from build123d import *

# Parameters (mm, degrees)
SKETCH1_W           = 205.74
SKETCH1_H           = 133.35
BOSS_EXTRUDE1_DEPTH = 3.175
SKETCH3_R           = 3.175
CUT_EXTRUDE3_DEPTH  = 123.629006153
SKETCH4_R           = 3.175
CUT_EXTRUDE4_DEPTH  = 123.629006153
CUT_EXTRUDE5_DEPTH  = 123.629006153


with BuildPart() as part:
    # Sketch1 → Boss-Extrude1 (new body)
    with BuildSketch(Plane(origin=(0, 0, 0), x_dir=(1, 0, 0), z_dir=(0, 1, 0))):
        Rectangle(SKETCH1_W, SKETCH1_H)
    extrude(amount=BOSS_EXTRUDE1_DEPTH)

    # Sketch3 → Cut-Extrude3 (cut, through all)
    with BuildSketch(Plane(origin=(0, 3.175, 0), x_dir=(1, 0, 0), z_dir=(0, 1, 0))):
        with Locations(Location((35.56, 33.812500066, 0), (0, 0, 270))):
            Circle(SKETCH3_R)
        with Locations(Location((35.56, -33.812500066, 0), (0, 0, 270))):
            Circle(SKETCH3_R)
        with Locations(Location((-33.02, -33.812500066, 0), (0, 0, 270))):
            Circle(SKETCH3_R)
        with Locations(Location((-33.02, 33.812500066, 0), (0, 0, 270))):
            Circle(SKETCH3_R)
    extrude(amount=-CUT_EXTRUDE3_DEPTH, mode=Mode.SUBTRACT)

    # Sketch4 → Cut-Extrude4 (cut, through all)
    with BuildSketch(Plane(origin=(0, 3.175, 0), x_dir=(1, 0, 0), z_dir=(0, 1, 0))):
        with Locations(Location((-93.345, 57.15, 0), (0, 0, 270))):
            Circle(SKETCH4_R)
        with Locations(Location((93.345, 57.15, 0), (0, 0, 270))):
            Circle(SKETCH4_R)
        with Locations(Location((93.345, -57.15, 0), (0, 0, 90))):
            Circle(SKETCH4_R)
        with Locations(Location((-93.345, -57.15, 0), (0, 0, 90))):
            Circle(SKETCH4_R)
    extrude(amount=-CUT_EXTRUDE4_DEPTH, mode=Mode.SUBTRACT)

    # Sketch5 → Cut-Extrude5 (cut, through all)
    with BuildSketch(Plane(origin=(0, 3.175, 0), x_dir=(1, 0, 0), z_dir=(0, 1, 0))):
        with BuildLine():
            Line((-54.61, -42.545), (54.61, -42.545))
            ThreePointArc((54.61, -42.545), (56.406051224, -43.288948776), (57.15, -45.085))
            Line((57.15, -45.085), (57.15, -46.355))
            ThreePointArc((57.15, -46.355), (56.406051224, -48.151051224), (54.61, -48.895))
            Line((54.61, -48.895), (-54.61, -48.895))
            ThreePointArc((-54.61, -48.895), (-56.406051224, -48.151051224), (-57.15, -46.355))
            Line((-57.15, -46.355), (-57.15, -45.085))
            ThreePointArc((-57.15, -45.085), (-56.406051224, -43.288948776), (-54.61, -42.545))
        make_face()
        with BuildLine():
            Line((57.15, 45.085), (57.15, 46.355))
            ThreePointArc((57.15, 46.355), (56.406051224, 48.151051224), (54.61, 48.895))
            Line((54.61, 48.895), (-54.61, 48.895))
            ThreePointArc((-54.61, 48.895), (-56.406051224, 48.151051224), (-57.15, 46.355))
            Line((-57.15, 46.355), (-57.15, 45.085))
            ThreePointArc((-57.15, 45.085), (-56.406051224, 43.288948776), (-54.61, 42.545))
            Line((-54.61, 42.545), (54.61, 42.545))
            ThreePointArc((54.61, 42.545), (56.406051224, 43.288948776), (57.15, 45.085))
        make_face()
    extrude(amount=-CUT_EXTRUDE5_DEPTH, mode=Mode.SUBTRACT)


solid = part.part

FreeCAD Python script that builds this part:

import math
import FreeCAD as App
import Part
import Sketcher
from FreeCAD import Vector
Q = App.Units.Quantity


def add_polygon(sketch, points):
    """Adds a closed chain of lines whose ends are joined by coincident constraints."""
    first, n = sketch.GeometryCount, len(points)
    for a, b in zip(points, points[1:] + points[:1]):
        sketch.addGeometry(Part.LineSegment(App.Vector(*a, 0), App.Vector(*b, 0)), False)
    for i in range(n):
        sketch.addConstraint(Sketcher.Constraint("Coincident", first + i, 2, first + (i + 1) % n, 1))

doc = App.newDocument("Part")
body = doc.addObject("PartDesign::Body", "Body")

# Sketch on XZ plane
sketch1 = doc.addObject("Sketcher::SketchObject", "Sketch")
body.addObject(sketch1)
sketch1.AttachmentSupport = (doc.XZ_Plane, [""])
sketch1.MapMode = "FlatFace"
add_polygon(sketch1, [(-103, -67), (-103, 67), (103, 67), (103, -67)])  # lines 0-3
sketch1.addConstraint([
    Sketcher.Constraint("Vertical", 0),
    Sketcher.Constraint("Horizontal", 1),
    Sketcher.Constraint("Vertical", 2),
    Sketcher.Constraint("Horizontal", 3),
    Sketcher.Constraint("Symmetric", 0, 2, 2, 2, -1, 1),
    Sketcher.Constraint("DistanceX", 1, 1, 1, 2, Q("8.1 in")),
    Sketcher.Constraint("DistanceY", 0, 1, 0, 2, Q("5.25 in")),
])
pad1 = doc.addObject("PartDesign::Pad", "Pad")
body.addObject(pad1)
pad1.Profile = sketch1
pad1.Length = Q("0.125 in")
pad1.Reversed = True

# Sketch on XZ plane
sketch2 = doc.addObject("Sketcher::SketchObject", "Sketch001")
body.addObject(sketch2)
sketch2.AttachmentSupport = (doc.XZ_Plane, [""])
sketch2.MapMode = "FlatFace"
sketch2.AttachmentOffset = App.Placement(Vector(0, 0, -0.125 * 25.4), App.Rotation())
sketch2.addGeometry([
    Part.Circle(Vector(35.6, -33.8, 0), Vector(0, 0, 1), 3.2),
    Part.Circle(Vector(35.6, 33.8, 0), Vector(0, 0, 1), 3.2),
    Part.Circle(Vector(-33, 33.8, 0), Vector(0, 0, 1), 3.2),
    Part.Circle(Vector(-33, -33.8, 0), Vector(0, 0, 1), 3.2),
], False)
sketch2.addConstraint([
    Sketcher.Constraint("Equal", 0, 1),
    Sketcher.Constraint("Equal", 1, 2),
    Sketcher.Constraint("Equal", 2, 3),
    Sketcher.Constraint("Symmetric", 0, 3, 1, 3, -1),
    Sketcher.Constraint("Symmetric", 2, 3, 3, 3, -1),
    Sketcher.Constraint("Horizontal", 1, 3, 2, 3),
    Sketcher.Constraint("Diameter", 0, Q("0.25 in")),
    Sketcher.Constraint("DistanceX", -1, 1, 0, 3, Q("1.4 in")),
    Sketcher.Constraint("DistanceX", 2, 3, -1, 1, Q("1.3 in")),
    Sketcher.Constraint("DistanceY", 0, 3, -1, 1, Q("33.8125 mm")),
])
pocket1 = doc.addObject("PartDesign::Pocket", "Pocket")
body.addObject(pocket1)
pocket1.Profile = sketch2
pocket1.Type = "ThroughAll"
pocket1.Reversed = True

# Sketch on XZ plane
sketch3 = doc.addObject("Sketcher::SketchObject", "Sketch002")
body.addObject(sketch3)
sketch3.AttachmentSupport = (doc.XZ_Plane, [""])
sketch3.MapMode = "FlatFace"
sketch3.AttachmentOffset = App.Placement(Vector(0, 0, -0.125 * 25.4), App.Rotation())
sketch3.addGeometry([
    Part.Circle(Vector(-93.3, -57.1, 0), Vector(0, 0, 1), 3.2),
    Part.Circle(Vector(93.3, -57.1, 0), Vector(0, 0, 1), 3.2),
    Part.Circle(Vector(93.3, 57.1, 0), Vector(0, 0, 1), 3.2),
    Part.Circle(Vector(-93.3, 57.1, 0), Vector(0, 0, 1), 3.2),
], False)
sketch3.addConstraint([
    Sketcher.Constraint("Equal", 0, 1),
    Sketcher.Constraint("Equal", 1, 2),
    Sketcher.Constraint("Equal", 2, 3),
    Sketcher.Constraint("Symmetric", 0, 3, 2, 3, -1, 1),
    Sketcher.Constraint("Symmetric", 1, 3, 3, 3, -1, 1),
    Sketcher.Constraint("Symmetric", 0, 3, 1, 3, -2),
    Sketcher.Constraint("Diameter", 0, Q("0.25 in")),
    Sketcher.Constraint("DistanceY", 1, 3, 2, 3, Q("4.5 in")),
    Sketcher.Constraint("DistanceX", 0, 3, 1, 3, Q("7.35 in")),
])
pocket2 = doc.addObject("PartDesign::Pocket", "Pocket001")
body.addObject(pocket2)
pocket2.Profile = sketch3
pocket2.Type = "ThroughAll"
pocket2.Reversed = True

# Sketch on XZ plane
sketch4 = doc.addObject("Sketcher::SketchObject", "Sketch003")
body.addObject(sketch4)
sketch4.AttachmentSupport = (doc.XZ_Plane, [""])
sketch4.MapMode = "FlatFace"
sketch4.AttachmentOffset = App.Placement(Vector(0, 0, -0.125 * 25.4), App.Rotation())
sketch4.addGeometry([
    Part.LineSegment(Vector(54.6, 42.5, 0), Vector(-54.6, 42.5, 0)),  # 0
    Part.ArcOfCircle(Part.Circle(Vector(-54.6, 45.1, 0), Vector(0, 0, 1), 2.5), math.radians(-180), math.radians(-90)),  # 1
    Part.LineSegment(Vector(-57.1, 45.1, 0), Vector(-57.1, 46.4, 0)),  # 2
    Part.ArcOfCircle(Part.Circle(Vector(-54.6, 46.4, 0), Vector(0, 0, 1), 2.5), math.radians(90), math.radians(180)),  # 3
    Part.LineSegment(Vector(-54.6, 48.9, 0), Vector(54.6, 48.9, 0)),  # 4
    Part.ArcOfCircle(Part.Circle(Vector(54.6, 46.4, 0), Vector(0, 0, 1), 2.5), math.radians(0), math.radians(90)),  # 5
    Part.LineSegment(Vector(57.1, 46.4, 0), Vector(57.1, 45.1, 0)),  # 6
    Part.ArcOfCircle(Part.Circle(Vector(54.6, 45.1, 0), Vector(0, 0, 1), 2.5), math.radians(-90), math.radians(0)),  # 7
    Part.LineSegment(Vector(57.1, -45.1, 0), Vector(57.1, -46.4, 0)),  # 8
    Part.ArcOfCircle(Part.Circle(Vector(54.6, -46.4, 0), Vector(0, 0, 1), 2.5), math.radians(-90), math.radians(0)),  # 9
    Part.LineSegment(Vector(54.6, -48.9, 0), Vector(-54.6, -48.9, 0)),  # 10
    Part.ArcOfCircle(Part.Circle(Vector(-54.6, -46.4, 0), Vector(0, 0, 1), 2.5), math.radians(-180), math.radians(-90)),  # 11
    Part.LineSegment(Vector(-57.1, -46.4, 0), Vector(-57.1, -45.1, 0)),  # 12
    Part.ArcOfCircle(Part.Circle(Vector(-54.6, -45.1, 0), Vector(0, 0, 1), 2.5), math.radians(90), math.radians(180)),  # 13
    Part.LineSegment(Vector(-54.6, -42.5, 0), Vector(54.6, -42.5, 0)),  # 14
    Part.ArcOfCircle(Part.Circle(Vector(54.6, -45.1, 0), Vector(0, 0, 1), 2.5), math.radians(0), math.radians(90)),  # 15
], False)
sketch4.addConstraint([
    Sketcher.Constraint("Tangent", 0, 2, 1, 2),
    Sketcher.Constraint("Tangent", 1, 1, 2, 1),
    Sketcher.Constraint("Tangent", 2, 2, 3, 2),
    Sketcher.Constraint("Tangent", 3, 1, 4, 1),
    Sketcher.Constraint("Tangent", 4, 2, 5, 2),
    Sketcher.Constraint("Tangent", 5, 1, 6, 1),
    Sketcher.Constraint("Tangent", 6, 2, 7, 2),
    Sketcher.Constraint("Tangent", 7, 1, 0, 1),
    Sketcher.Constraint("Tangent", 8, 2, 9, 2),
    Sketcher.Constraint("Tangent", 9, 1, 10, 1),
    Sketcher.Constraint("Tangent", 10, 2, 11, 2),
    Sketcher.Constraint("Tangent", 11, 1, 12, 1),
    Sketcher.Constraint("Tangent", 12, 2, 13, 2),
    Sketcher.Constraint("Tangent", 13, 1, 14, 1),
    Sketcher.Constraint("Tangent", 14, 2, 15, 2),
    Sketcher.Constraint("Tangent", 15, 1, 8, 1),
    Sketcher.Constraint("Horizontal", 0),
    Sketcher.Constraint("Vertical", 2),
    Sketcher.Constraint("Horizontal", 4),
    Sketcher.Constraint("Vertical", 6),
    Sketcher.Constraint("Vertical", 8),
    Sketcher.Constraint("Horizontal", 10),
    Sketcher.Constraint("Vertical", 12),
    Sketcher.Constraint("Horizontal", 14),
    Sketcher.Constraint("Equal", 1, 3),
    Sketcher.Constraint("Equal", 3, 5),
    Sketcher.Constraint("Equal", 5, 7),
    Sketcher.Constraint("Equal", 7, 9),
    Sketcher.Constraint("Equal", 9, 11),
    Sketcher.Constraint("Equal", 11, 13),
    Sketcher.Constraint("Equal", 13, 15),
    Sketcher.Constraint("Symmetric", 3, 3, 9, 3, -1, 1),
    Sketcher.Constraint("Symmetric", 7, 3, 13, 3, -1, 1),
    Sketcher.Constraint("Vertical", 7, 3, 9, 3),
    Sketcher.Constraint("Radius", 1, Q("0.1 in")),
    Sketcher.Constraint("DistanceX", 0, 2, 0, 1, Q("4.3 in")),
    Sketcher.Constraint("DistanceY", 2, 1, 2, 2, Q("0.05 in")),
    Sketcher.Constraint("DistanceY", 9, 3, 7, 3, Q("3.6 in")),
])
pocket3 = doc.addObject("PartDesign::Pocket", "Pocket002")
body.addObject(pocket3)
pocket3.Profile = sketch4
pocket3.Type = "ThroughAll"
pocket3.Reversed = True

doc.recompute()
